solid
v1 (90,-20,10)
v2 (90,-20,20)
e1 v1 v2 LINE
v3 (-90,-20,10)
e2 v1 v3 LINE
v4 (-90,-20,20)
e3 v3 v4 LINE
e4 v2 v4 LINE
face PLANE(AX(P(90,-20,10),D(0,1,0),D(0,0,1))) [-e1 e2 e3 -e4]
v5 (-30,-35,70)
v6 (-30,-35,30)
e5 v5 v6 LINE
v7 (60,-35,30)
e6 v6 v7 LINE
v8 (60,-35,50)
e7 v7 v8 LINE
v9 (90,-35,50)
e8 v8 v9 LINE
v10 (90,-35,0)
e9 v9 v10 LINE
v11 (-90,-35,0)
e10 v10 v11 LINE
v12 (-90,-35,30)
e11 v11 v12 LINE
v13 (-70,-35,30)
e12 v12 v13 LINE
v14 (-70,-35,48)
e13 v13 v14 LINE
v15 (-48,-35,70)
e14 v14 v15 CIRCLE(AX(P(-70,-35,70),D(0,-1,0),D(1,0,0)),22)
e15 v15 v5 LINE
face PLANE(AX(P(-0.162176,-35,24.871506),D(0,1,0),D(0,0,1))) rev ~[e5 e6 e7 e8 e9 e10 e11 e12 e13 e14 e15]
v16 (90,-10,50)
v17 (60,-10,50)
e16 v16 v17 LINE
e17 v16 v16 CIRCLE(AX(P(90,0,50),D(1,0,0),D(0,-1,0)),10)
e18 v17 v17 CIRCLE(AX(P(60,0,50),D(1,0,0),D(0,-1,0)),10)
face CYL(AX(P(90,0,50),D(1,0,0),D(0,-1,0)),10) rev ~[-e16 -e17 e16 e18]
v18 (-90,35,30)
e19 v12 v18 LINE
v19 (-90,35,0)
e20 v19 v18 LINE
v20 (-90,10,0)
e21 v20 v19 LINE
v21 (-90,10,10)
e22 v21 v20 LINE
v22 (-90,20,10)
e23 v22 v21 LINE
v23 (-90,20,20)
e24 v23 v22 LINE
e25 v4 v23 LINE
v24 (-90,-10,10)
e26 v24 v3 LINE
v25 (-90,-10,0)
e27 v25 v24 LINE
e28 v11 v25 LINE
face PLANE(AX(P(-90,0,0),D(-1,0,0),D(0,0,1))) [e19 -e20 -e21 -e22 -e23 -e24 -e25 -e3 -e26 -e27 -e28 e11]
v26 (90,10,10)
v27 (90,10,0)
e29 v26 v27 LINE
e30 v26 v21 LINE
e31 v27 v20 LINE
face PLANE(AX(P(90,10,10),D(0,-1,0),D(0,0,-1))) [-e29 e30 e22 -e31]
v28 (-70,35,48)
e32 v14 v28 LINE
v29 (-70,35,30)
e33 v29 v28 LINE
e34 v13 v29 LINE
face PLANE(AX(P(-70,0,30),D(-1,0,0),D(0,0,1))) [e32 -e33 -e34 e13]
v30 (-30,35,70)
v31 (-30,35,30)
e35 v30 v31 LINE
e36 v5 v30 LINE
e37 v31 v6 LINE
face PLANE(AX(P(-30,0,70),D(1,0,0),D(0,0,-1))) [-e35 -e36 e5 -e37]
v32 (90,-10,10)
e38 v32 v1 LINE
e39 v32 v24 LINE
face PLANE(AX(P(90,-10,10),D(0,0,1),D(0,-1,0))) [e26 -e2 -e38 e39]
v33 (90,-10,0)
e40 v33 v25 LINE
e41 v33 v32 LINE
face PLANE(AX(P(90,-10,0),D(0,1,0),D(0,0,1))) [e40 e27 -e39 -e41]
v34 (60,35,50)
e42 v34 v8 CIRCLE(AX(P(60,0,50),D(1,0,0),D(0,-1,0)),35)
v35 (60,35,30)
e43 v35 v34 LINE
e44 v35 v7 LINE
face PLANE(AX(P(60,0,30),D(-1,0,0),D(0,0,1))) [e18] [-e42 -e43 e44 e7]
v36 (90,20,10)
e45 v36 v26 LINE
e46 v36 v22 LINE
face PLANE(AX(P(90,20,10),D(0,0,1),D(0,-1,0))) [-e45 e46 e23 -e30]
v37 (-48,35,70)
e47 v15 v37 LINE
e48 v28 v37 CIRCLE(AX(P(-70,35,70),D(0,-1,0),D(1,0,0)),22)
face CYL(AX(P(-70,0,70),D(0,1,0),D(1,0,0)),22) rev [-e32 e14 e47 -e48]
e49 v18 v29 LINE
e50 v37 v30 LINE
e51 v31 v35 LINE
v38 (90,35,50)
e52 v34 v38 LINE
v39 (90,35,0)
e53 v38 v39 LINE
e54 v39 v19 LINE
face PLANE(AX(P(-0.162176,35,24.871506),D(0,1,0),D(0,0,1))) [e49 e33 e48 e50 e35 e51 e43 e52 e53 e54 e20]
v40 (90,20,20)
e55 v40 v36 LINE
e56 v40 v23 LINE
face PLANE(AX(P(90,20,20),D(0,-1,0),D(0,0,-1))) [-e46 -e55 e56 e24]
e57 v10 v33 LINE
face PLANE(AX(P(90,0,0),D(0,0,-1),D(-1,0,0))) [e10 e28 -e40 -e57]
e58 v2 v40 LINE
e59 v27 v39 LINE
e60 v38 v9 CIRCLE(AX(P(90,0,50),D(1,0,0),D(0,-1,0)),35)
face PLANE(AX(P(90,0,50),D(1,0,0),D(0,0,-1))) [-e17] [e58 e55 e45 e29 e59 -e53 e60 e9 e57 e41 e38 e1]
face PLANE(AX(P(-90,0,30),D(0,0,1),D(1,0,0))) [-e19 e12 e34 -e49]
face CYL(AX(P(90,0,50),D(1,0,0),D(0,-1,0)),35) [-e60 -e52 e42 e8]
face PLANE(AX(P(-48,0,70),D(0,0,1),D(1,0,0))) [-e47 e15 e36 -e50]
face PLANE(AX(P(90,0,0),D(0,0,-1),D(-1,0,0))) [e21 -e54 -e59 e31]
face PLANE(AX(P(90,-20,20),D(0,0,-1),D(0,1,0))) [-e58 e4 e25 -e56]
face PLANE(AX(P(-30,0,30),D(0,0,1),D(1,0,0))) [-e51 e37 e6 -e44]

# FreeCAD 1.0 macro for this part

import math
import FreeCAD as App
import Part
import Sketcher
Q = App.Units.Quantity


def add_polygon(sketch, points):
    """Adds a closed chain of lines whose ends are joined by coincident constraints."""
    first, n = sketch.GeometryCount, len(points)
    for a, b in zip(points, points[1:] + points[:1]):
        sketch.addGeometry(Part.LineSegment(App.Vector(*a, 0), App.Vector(*b, 0)), False)
    for i in range(n):
        sketch.addConstraint(Sketcher.Constraint("Coincident", first + i, 2, first + (i + 1) % n, 1))

doc = App.newDocument("Part")
body = doc.addObject("PartDesign::Body", "Body")

# Sketch on XZ plane
sketch1 = body.newObject("Sketcher::SketchObject", "Sketch")
sketch1.AttachmentSupport = (doc.getObject("XZ_Plane"), [""])
sketch1.MapMode = "FlatFace"
sketch1.addGeometry(Part.LineSegment(App.Vector(90, 50, 0), App.Vector(60, 50, 0)), False)
sketch1.addGeometry(Part.LineSegment(App.Vector(60, 50, 0), App.Vector(60, 30, 0)), False)
sketch1.addGeometry(Part.LineSegment(App.Vector(60, 30, 0), App.Vector(-30, 30, 0)), False)
sketch1.addGeometry(Part.LineSegment(App.Vector(-30, 30, 0), App.Vector(-30, 70, 0)), False)
sketch1.addGeometry(Part.LineSegment(App.Vector(-30, 70, 0), App.Vector(-48, 70, 0)), False)
sketch1.addGeometry(Part.ArcOfCircle(Part.Circle(App.Vector(-70, 70, 0), App.Vector(0, 0, 1), 22), math.radians(-90), math.radians(0)), False)
sketch1.addGeometry(Part.LineSegment(App.Vector(-70, 48, 0), App.Vector(-70, 30, 0)), False)
sketch1.addGeometry(Part.LineSegment(App.Vector(-70, 30, 0), App.Vector(-90, 30, 0)), False)
sketch1.addGeometry(Part.LineSegment(App.Vector(-90, 30, 0), App.Vector(-90, 0, 0)), False)
sketch1.addGeometry(Part.LineSegment(App.Vector(-90, 0, 0), App.Vector(90, 0, 0)), False)
sketch1.addGeometry(Part.LineSegment(App.Vector(90, 0, 0), App.Vector(90, 50, 0)), False)
sketch1.addConstraint(Sketcher.Constraint("Coincident", 0, 2, 1, 1))
sketch1.addConstraint(Sketcher.Constraint("Coincident", 1, 2, 2, 1))
sketch1.addConstraint(Sketcher.Constraint("Coincident", 2, 2, 3, 1))
sketch1.addConstraint(Sketcher.Constraint("Coincident", 3, 2, 4, 1))
sketch1.addConstraint(Sketcher.Constraint("Coincident", 4, 2, 5, 2))
sketch1.addConstraint(Sketcher.Constraint("Coincident", 5, 1, 6, 1))
sketch1.addConstraint(Sketcher.Constraint("Coincident", 6, 2, 7, 1))
sketch1.addConstraint(Sketcher.Constraint("Coincident", 7, 2, 8, 1))
sketch1.addConstraint(Sketcher.Constraint("Coincident", 8, 2, 9, 1))
sketch1.addConstraint(Sketcher.Constraint("Coincident", 9, 2, 10, 1))
sketch1.addConstraint(Sketcher.Constraint("Coincident", 10, 2, 0, 1))
sketch1.addConstraint(Sketcher.Constraint("Horizontal", 0))
sketch1.addConstraint(Sketcher.Constraint("Vertical", 1))
sketch1.addConstraint(Sketcher.Constraint("Horizontal", 2))
sketch1.addConstraint(Sketcher.Constraint("Vertical", 3))
sketch1.addConstraint(Sketcher.Constraint("Horizontal", 4))
sketch1.addConstraint(Sketcher.Constraint("Vertical", 6))
sketch1.addConstraint(Sketcher.Constraint("Horizontal", 7))
sketch1.addConstraint(Sketcher.Constraint("Vertical", 8))
sketch1.addConstraint(Sketcher.Constraint("Horizontal", 9))
sketch1.addConstraint(Sketcher.Constraint("Vertical", 10))
sketch1.addConstraint(Sketcher.Constraint("Symmetric", 8, 2, 9, 2, -1, 1))
sketch1.addConstraint(Sketcher.Constraint("Horizontal", 5, 3, 3, 2))
sketch1.addConstraint(Sketcher.Constraint("Horizontal", 2, 2, 6, 2))
sketch1.addConstraint(Sketcher.Constraint("Equal", 7, 1))
sketch1.addConstraint(Sketcher.Constraint("Equal", 4, 6))
sketch1.addConstraint(Sketcher.Constraint("Equal", 0, 8))
sketch1.addConstraint(Sketcher.Constraint("Radius", 5, Q("22 mm")))
sketch1.addConstraint(Sketcher.Constraint("DistanceX", 0, 2, 0, 1, Q("30 mm")))
sketch1.addConstraint(Sketcher.Constraint("DistanceX", 2, 2, 2, 1, Q("90 mm")))
sketch1.addConstraint(Sketcher.Constraint("DistanceX", 4, 2, 4, 1, Q("18 mm")))
sketch1.addConstraint(Sketcher.Constraint("DistanceX", 7, 2, 7, 1, Q("20 mm")))
sketch1.addConstraint(Sketcher.Constraint("DistanceX", 9, 1, 9, 2, Q("180 mm")))
pad1 = body.newObject("PartDesign::Pad", "Pad")
pad1.Profile = sketch1
pad1.Length = 70
pad1.Midplane = True

# Sketch on YZ plane
sketch2 = body.newObject("Sketcher::SketchObject", "Sketch001")
sketch2.AttachmentSupport = (doc.getObject("YZ_Plane"), [""])
sketch2.MapMode = "FlatFace"
sketch2.AttachmentOffset = App.Placement(App.Vector(0, 0, 90), App.Rotation())
sketch2.addGeometry(Part.LineSegment(App.Vector(10, 50, 0), App.Vector(35, 50, 0)), False)
sketch2.addGeometry(Part.ArcOfCircle(Part.Circle(App.Vector(0, 50, 0), App.Vector(0, 0, 1), 35), math.radians(0), math.radians(180)), False)
sketch2.addGeometry(Part.LineSegment(App.Vector(-35, 50, 0), App.Vector(-10, 50, 0)), False)
sketch2.addGeometry(Part.ArcOfCircle(Part.Circle(App.Vector(0, 50, 0), App.Vector(0, 0, 1), 10), math.radians(180), math.radians(360)), False)
sketch2.addConstraint(Sketcher.Constraint("Coincident", 0, 2, 1, 1))
sketch2.addConstraint(Sketcher.Constraint("Coincident", 1, 2, 2, 1))
sketch2.addConstraint(Sketcher.Constraint("Coincident", 2, 2, 3, 1))
sketch2.addConstraint(Sketcher.Constraint("Coincident", 3, 2, 0, 1))
sketch2.addConstraint(Sketcher.Constraint("Horizontal", 0))
sketch2.addConstraint(Sketcher.Constraint("Horizontal", 2))
sketch2.addConstraint(Sketcher.Constraint("Coincident", 3, 3, 1, 3))
sketch2.addConstraint(Sketcher.Constraint("Symmetric", 0, 2, 1, 2, -2))
sketch2.addConstraint(Sketcher.Constraint("Horizontal", 3, 3, 0, 2))
sketch2.addConstraint(Sketcher.Constraint("Radius", 1, Q("35 mm")))
sketch2.addConstraint(Sketcher.Constraint("Radius", 3, Q("10 mm")))
sketch2.addConstraint(Sketcher.Constraint("DistanceY", -1, 1, 1, 3, Q("50 mm")))
pad2 = body.newObject("PartDesign::Pad", "Pad001")
pad2.Profile = sketch2
pad2.Length = 30
pad2.Reversed = True

# Sketch on YZ plane
sketch3 = body.newObject("Sketcher::SketchObject", "Sketch002")
sketch3.AttachmentSupport = (doc.getObject("YZ_Plane"), [""])
sketch3.MapMode = "FlatFace"
sketch3.AttachmentOffset = App.Placement(App.Vector(0, 0, 90), App.Rotation())
sketch3.addGeometry(Part.Circle(App.Vector(0, 50, 0), App.Vector(0, 0, 1), 10), False)
sketch3.addConstraint(Sketcher.Constraint("PointOnObject", 0, 3, -2))
sketch3.addConstraint(Sketcher.Constraint("Diameter", 0, Q("20 mm")))
sketch3.addConstraint(Sketcher.Constraint("DistanceY", -1, 1, 0, 3, Q("50 mm")))
pocket1 = body.newObject("PartDesign::Pocket", "Pocket")
pocket1.Profile = sketch3
pocket1.Length = 30

# Sketch on YZ plane
sketch4 = body.newObject("Sketcher::SketchObject", "Sketch003")
sketch4.AttachmentSupport = (doc.getObject("YZ_Plane"), [""])
sketch4.MapMode = "FlatFace"
sketch4.AttachmentOffset = App.Placement(App.Vector(0, 0, 90), App.Rotation())
add_polygon(sketch4, [(20, 20), (-20, 20), (-20, 10), (-10, 10), (-10, 0), (10, 0), (10, 10), (20, 10)])  # lines 0-7
sketch4.addConstraint(Sketcher.Constraint("Horizontal", 0))
sketch4.addConstraint(Sketcher.Constraint("Vertical", 1))
sketch4.addConstraint(Sketcher.Constraint("Horizontal", 2))
sketch4.addConstraint(Sketcher.Constraint("Vertical", 3))
sketch4.addConstraint(Sketcher.Constraint("Horizontal", 4))
sketch4.addConstraint(Sketcher.Constraint("Vertical", 5))
sketch4.addConstraint(Sketcher.Constraint("Horizontal", 6))
sketch4.addConstraint(Sketcher.Constraint("Vertical", 7))
sketch4.addConstraint(Sketcher.Constraint("Symmetric", 3, 2, 4, 2, -1, 1))
sketch4.addConstraint(Sketcher.Constraint("Symmetric", 1, 2, 6, 2, -2))
sketch4.addConstraint(Sketcher.Constraint("Equal", 6, 1))
sketch4.addConstraint(Sketcher.Constraint("Equal", 1, 3))
sketch4.addConstraint(Sketcher.Constraint("DistanceX", 0, 2, 0, 1, Q("40 mm")))
sketch4.addConstraint(Sketcher.Constraint("DistanceX", 2, 1, 2, 2, Q("10 mm")))
pocket2 = body.newObject("PartDesign::Pocket", "Pocket001")
pocket2.Profile = sketch4
pocket2.Length = 180

doc.recompute()
